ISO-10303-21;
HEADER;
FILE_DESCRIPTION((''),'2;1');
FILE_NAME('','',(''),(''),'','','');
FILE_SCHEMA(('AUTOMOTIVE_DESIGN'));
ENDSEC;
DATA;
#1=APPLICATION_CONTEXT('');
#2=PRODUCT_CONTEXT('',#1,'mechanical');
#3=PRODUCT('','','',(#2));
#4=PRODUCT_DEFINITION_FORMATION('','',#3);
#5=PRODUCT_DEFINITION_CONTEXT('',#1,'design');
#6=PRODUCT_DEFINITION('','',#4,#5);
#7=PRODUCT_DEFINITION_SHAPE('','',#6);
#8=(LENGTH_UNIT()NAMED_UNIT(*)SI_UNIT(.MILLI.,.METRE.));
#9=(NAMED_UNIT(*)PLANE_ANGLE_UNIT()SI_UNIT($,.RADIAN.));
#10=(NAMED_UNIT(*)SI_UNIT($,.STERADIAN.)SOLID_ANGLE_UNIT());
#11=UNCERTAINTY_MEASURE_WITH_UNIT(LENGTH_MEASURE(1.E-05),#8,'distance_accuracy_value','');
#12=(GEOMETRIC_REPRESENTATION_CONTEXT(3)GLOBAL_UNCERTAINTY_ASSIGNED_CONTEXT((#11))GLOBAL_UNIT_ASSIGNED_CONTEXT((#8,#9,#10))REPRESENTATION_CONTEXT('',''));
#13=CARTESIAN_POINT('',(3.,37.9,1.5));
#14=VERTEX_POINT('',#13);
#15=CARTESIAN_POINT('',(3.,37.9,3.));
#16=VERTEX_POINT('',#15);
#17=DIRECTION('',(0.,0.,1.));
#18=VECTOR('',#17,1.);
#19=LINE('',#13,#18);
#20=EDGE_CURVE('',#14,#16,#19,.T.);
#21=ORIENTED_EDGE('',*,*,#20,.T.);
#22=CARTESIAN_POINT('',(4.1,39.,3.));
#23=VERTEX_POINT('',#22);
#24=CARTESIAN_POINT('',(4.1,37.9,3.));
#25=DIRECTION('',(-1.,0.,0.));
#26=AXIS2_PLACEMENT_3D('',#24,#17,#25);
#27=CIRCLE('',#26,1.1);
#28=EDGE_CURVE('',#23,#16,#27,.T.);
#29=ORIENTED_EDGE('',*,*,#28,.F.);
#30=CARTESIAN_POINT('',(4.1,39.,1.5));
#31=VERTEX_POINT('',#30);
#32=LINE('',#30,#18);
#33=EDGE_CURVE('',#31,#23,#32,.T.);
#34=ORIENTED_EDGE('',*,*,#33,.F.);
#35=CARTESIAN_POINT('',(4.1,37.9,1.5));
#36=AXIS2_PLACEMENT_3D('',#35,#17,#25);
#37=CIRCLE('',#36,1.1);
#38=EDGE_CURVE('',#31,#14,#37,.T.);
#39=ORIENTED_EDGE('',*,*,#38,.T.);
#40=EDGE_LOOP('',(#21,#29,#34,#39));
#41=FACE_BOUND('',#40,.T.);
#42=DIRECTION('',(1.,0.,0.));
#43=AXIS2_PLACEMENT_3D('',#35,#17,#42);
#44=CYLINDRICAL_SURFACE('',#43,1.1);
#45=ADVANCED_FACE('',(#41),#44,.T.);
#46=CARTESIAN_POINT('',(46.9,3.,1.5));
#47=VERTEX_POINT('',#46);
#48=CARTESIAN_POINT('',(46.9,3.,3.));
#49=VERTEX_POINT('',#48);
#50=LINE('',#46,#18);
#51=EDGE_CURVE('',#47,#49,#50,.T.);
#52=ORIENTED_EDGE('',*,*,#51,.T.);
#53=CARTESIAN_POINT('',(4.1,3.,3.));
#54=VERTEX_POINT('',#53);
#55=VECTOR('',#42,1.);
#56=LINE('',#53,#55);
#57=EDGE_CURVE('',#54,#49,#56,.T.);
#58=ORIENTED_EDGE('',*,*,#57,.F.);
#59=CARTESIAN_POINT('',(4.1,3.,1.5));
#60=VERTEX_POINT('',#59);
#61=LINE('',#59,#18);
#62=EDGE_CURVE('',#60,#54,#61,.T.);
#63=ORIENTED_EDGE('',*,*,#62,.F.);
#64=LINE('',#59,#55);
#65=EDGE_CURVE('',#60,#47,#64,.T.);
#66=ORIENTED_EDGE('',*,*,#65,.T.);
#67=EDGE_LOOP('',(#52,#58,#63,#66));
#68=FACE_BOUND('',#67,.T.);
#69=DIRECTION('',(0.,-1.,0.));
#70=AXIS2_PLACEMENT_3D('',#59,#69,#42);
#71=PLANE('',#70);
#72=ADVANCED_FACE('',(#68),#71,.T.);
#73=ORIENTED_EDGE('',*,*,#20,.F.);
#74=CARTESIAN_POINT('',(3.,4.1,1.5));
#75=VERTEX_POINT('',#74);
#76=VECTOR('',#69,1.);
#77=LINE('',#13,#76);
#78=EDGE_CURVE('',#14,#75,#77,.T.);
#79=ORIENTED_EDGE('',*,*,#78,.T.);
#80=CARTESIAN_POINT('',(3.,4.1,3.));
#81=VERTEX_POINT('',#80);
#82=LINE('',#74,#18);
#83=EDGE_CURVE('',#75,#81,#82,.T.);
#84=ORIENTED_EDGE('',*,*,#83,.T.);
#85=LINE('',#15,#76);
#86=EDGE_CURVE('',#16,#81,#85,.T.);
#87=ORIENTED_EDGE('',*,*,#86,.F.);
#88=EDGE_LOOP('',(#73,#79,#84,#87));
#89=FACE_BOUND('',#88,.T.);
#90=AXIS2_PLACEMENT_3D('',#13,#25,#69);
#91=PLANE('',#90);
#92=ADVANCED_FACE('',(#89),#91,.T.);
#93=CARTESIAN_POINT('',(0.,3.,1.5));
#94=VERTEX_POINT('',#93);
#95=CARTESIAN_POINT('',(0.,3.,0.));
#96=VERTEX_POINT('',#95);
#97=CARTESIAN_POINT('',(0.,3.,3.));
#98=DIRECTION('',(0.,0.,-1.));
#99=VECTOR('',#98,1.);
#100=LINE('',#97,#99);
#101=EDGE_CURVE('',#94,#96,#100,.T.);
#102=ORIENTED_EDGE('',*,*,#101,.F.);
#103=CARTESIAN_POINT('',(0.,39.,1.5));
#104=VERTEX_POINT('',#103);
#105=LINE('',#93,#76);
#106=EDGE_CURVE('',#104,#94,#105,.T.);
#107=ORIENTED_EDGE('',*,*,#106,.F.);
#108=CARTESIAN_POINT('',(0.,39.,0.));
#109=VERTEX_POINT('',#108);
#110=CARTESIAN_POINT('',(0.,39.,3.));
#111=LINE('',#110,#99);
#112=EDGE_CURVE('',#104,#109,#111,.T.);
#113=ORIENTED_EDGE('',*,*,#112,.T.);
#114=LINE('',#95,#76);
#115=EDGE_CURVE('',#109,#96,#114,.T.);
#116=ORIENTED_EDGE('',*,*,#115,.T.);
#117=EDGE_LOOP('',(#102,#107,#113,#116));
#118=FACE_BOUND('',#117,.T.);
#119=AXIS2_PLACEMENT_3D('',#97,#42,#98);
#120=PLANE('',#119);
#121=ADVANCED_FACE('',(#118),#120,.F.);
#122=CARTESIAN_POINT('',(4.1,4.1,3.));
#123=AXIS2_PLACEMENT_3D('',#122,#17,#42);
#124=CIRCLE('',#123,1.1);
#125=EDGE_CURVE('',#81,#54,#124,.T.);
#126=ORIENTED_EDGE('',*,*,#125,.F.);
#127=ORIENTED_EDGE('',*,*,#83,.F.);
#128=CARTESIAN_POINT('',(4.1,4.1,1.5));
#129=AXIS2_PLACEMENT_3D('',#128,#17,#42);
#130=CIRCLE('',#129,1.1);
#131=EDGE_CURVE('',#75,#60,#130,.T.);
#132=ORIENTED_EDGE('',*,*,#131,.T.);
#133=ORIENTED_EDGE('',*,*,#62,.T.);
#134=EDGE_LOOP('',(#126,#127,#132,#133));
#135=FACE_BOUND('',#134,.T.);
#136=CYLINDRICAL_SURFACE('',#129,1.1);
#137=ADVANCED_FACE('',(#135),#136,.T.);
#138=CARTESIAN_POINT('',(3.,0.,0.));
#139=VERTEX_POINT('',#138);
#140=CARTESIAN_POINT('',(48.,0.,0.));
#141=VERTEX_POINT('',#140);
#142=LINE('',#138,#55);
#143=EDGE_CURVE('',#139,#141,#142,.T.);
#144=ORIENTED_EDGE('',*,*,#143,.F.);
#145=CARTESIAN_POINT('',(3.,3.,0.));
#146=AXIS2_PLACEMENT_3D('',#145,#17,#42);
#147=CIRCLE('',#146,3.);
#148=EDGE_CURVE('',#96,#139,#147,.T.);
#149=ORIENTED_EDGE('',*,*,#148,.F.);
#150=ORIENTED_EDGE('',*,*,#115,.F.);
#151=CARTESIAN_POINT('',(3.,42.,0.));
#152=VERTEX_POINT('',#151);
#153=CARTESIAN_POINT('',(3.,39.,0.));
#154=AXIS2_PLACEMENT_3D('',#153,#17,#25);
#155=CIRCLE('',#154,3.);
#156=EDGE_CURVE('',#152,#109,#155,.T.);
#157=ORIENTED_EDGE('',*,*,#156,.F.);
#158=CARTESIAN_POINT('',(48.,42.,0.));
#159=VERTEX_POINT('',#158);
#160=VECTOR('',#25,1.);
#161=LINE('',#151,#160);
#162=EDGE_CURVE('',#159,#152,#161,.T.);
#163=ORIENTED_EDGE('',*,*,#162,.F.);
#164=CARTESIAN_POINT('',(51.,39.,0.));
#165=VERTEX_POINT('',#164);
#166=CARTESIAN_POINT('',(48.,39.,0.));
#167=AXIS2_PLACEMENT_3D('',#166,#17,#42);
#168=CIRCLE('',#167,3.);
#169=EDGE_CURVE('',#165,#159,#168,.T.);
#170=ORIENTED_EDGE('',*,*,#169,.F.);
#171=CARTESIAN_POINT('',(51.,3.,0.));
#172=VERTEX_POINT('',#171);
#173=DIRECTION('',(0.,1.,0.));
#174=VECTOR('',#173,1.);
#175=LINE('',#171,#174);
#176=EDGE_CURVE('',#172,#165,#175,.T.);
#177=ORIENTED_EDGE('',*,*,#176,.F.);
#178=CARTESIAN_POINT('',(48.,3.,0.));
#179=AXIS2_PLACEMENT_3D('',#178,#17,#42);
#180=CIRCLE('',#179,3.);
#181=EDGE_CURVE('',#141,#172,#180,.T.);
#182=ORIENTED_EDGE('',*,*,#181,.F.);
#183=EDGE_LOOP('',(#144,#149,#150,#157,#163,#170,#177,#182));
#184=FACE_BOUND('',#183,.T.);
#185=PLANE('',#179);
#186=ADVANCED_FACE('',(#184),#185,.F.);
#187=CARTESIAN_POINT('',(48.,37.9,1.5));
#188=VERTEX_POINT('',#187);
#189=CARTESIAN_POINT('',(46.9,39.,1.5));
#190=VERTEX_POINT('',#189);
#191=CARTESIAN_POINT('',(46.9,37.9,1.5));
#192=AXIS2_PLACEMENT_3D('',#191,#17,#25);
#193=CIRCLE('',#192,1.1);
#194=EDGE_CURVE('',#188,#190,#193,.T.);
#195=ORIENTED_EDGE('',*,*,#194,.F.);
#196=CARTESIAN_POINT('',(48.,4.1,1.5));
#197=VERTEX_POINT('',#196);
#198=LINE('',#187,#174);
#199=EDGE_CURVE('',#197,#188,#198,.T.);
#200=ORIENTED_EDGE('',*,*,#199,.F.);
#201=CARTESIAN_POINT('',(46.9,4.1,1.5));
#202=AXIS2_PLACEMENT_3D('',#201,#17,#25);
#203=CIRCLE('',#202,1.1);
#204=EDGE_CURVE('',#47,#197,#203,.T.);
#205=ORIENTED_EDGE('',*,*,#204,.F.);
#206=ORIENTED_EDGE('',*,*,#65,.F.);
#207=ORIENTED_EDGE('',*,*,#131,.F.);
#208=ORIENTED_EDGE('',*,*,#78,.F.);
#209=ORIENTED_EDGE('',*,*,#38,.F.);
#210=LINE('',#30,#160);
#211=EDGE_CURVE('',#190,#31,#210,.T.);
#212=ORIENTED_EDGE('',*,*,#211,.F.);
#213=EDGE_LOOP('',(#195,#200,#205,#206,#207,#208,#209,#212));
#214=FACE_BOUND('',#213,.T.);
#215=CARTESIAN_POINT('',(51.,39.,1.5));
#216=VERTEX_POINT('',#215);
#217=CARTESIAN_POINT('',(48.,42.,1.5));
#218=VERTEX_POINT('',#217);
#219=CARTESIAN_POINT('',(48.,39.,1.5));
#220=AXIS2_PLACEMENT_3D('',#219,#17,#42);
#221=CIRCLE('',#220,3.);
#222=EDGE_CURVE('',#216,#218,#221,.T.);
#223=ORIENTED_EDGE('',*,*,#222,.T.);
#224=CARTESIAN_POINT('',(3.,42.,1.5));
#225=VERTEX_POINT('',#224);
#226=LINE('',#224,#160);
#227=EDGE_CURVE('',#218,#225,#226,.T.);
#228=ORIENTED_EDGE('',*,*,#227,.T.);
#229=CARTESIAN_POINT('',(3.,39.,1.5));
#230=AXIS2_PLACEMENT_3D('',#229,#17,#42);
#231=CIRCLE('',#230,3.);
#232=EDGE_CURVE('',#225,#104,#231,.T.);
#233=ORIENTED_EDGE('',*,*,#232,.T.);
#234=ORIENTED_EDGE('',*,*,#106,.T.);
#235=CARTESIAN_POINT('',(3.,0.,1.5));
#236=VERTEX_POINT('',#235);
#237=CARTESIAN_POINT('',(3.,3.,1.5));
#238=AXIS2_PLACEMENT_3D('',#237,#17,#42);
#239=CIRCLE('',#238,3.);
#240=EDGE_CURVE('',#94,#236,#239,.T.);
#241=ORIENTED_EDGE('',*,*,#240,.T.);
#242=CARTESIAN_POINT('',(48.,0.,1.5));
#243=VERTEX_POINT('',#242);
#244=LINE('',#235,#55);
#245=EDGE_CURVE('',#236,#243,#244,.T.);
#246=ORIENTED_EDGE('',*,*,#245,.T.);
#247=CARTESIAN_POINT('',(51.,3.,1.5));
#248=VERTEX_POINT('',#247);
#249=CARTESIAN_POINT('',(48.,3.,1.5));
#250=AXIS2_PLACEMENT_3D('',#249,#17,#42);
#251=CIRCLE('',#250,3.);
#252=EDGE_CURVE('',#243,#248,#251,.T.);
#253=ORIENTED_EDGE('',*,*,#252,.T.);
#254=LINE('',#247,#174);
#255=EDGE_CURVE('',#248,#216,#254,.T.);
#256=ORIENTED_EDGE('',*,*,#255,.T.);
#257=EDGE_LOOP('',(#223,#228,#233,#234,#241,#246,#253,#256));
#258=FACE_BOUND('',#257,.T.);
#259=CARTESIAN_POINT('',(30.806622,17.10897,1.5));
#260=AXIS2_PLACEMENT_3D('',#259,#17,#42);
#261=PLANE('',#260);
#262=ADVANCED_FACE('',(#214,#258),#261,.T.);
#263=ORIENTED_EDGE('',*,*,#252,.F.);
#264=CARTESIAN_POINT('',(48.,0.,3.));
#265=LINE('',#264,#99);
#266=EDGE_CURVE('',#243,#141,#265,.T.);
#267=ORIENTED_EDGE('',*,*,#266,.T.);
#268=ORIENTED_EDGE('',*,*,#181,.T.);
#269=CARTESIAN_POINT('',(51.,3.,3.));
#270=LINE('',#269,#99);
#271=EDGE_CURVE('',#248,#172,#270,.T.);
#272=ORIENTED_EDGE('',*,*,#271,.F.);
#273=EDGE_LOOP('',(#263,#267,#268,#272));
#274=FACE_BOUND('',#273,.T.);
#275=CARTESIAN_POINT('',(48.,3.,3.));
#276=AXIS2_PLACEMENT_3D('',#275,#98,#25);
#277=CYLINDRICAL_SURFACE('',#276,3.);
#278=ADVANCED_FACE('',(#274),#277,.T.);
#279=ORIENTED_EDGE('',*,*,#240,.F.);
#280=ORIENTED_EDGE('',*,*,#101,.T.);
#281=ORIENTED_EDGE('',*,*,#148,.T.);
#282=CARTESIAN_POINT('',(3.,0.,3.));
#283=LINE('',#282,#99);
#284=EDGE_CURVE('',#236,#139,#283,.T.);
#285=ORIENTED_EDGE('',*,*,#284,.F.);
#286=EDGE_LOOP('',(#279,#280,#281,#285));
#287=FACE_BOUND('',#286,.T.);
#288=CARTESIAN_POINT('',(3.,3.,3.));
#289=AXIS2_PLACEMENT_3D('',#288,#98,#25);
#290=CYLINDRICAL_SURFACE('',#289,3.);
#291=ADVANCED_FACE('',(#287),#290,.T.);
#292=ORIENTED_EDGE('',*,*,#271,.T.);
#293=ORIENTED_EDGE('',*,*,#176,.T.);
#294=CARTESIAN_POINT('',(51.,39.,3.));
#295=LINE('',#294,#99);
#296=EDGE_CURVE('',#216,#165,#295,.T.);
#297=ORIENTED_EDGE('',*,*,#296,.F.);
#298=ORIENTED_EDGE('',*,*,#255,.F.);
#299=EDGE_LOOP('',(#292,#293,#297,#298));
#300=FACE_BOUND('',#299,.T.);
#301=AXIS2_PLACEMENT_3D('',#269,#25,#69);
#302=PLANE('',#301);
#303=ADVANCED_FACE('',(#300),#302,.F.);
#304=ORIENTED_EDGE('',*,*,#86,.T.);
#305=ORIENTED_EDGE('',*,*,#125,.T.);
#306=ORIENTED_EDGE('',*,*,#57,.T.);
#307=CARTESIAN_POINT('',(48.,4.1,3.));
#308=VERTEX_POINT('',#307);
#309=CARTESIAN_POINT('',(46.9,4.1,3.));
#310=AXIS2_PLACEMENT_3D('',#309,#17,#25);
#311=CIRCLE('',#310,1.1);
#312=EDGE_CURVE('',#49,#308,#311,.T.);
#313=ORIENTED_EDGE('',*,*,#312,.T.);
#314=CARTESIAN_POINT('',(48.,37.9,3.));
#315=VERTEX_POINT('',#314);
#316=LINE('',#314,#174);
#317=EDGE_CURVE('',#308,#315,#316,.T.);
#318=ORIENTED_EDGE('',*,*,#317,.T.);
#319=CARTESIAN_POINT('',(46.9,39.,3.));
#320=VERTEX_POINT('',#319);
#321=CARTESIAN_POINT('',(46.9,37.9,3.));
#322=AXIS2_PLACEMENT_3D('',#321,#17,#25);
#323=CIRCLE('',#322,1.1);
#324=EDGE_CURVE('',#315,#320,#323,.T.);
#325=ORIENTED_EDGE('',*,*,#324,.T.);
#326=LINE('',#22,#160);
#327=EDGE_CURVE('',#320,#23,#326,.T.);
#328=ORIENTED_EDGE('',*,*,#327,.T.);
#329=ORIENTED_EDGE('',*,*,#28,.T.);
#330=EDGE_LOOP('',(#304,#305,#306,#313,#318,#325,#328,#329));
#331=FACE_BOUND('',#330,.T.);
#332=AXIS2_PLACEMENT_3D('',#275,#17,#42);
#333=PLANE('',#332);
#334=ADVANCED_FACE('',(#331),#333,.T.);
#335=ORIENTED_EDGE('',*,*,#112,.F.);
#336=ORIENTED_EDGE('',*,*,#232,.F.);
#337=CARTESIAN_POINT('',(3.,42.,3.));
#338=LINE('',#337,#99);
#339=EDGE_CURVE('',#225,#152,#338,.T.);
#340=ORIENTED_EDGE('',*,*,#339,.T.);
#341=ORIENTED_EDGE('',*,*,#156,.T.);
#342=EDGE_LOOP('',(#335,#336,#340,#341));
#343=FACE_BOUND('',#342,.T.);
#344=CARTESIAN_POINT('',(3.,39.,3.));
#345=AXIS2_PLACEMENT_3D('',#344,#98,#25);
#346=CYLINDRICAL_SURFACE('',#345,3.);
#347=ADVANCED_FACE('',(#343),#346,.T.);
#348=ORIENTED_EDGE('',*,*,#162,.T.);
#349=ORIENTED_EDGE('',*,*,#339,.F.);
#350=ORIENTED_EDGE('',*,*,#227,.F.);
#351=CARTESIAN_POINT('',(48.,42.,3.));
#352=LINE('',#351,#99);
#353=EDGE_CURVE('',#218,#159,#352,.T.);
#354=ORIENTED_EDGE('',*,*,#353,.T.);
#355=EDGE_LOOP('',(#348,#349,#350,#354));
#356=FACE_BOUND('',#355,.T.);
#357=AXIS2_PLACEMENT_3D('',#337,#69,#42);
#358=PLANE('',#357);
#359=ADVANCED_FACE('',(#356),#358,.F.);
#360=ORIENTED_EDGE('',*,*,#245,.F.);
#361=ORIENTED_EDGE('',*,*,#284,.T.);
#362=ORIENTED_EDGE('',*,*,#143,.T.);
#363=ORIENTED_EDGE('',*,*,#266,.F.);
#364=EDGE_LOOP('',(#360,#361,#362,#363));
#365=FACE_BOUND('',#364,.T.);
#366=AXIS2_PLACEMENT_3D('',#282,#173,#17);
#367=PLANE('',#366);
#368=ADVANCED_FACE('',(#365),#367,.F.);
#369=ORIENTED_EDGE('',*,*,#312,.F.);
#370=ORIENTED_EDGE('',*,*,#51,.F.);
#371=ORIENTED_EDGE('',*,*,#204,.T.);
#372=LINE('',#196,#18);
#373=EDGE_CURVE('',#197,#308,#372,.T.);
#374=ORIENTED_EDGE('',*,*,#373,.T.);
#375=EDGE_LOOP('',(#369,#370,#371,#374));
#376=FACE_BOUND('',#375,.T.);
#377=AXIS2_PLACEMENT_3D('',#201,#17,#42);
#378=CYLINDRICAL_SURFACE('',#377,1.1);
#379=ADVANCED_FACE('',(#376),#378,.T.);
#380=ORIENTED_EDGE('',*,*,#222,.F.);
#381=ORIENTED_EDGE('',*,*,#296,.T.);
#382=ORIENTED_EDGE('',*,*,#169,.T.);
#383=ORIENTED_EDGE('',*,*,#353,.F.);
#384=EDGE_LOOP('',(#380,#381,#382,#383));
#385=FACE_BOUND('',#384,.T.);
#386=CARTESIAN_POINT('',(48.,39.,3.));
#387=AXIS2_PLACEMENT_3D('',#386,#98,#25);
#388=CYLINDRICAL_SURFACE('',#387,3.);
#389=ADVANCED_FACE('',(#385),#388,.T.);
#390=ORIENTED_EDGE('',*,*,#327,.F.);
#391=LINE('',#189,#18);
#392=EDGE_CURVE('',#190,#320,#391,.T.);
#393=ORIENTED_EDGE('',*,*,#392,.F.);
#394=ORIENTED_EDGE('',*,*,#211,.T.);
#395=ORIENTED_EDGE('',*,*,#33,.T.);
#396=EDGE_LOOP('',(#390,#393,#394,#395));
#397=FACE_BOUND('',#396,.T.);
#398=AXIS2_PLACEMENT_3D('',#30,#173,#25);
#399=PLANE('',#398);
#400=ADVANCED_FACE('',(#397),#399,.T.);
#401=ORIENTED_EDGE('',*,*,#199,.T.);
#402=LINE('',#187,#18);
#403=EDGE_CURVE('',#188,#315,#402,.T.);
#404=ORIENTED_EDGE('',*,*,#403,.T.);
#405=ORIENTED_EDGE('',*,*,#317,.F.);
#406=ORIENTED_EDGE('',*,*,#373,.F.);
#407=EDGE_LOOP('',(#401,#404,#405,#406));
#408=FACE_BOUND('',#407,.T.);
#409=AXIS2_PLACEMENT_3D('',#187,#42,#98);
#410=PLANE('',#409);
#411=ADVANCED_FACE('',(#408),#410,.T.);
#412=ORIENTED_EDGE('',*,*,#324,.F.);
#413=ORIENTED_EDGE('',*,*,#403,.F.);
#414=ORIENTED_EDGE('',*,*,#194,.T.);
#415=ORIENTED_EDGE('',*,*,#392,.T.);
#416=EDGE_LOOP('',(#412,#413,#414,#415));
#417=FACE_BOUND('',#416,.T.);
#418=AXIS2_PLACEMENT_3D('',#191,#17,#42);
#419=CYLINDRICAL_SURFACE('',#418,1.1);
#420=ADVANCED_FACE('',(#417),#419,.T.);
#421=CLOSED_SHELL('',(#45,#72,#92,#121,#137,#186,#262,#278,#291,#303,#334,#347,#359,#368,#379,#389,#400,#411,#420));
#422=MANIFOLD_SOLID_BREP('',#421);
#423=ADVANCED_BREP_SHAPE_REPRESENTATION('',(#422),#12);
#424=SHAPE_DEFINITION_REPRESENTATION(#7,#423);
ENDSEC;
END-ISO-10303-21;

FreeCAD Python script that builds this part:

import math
import FreeCAD as App
import Part
import Sketcher

doc = App.newDocument("Part")
body = doc.addObject("PartDesign::Body", "Body")

sketch1 = doc.addObject("Sketcher::SketchObject", "Sketch")
body.addObject(sketch1)
sketch1.AttachmentSupport = (doc.XY_Plane, [""])
sketch1.MapMode = "FlatFace"
sketch1.addGeometry([
    Part.LineSegment(App.Vector(3, 0, 0), App.Vector(48, 0, 0)),
    Part.ArcOfCircle(Part.Circle(App.Vector(48, 3, 0), App.Vector(0, 0, 1), 3), math.radians(-90), math.radians(0)),
    Part.LineSegment(App.Vector(51, 3, 0), App.Vector(51, 39, 0)),
    Part.ArcOfCircle(Part.Circle(App.Vector(48, 39, 0), App.Vector(0, 0, 1), 3), math.radians(0), math.radians(90)),
    Part.LineSegment(App.Vector(48, 42, 0), App.Vector(3, 42, 0)),
    Part.ArcOfCircle(Part.Circle(App.Vector(3, 39, 0), App.Vector(0, 0, 1), 3), math.radians(90), math.radians(180)),
    Part.LineSegment(App.Vector(0, 39, 0), App.Vector(0, 3, 0)),
    Part.ArcOfCircle(Part.Circle(App.Vector(3, 3, 0), App.Vector(0, 0, 1), 3), math.radians(180), math.radians(270)),
], False)
sketch1.addConstraint([
    Sketcher.Constraint("Tangent", 0, 2, 1, 1),
    Sketcher.Constraint("Tangent", 1, 2, 2, 1),
    Sketcher.Constraint("Tangent", 2, 2, 3, 1),
    Sketcher.Constraint("Tangent", 3, 2, 4, 1),
    Sketcher.Constraint("Tangent", 4, 2, 5, 1),
    Sketcher.Constraint("Tangent", 5, 2, 6, 1),
    Sketcher.Constraint("Tangent", 6, 2, 7, 1),
    Sketcher.Constraint("Tangent", 7, 2, 0, 1),
    Sketcher.Constraint("Horizontal", 0),
    Sketcher.Constraint("Vertical", 2),
    Sketcher.Constraint("Horizontal", 4),
    Sketcher.Constraint("Vertical", 6),
    Sketcher.Constraint("Equal", 1, 3),
    Sketcher.Constraint("Equal", 3, 5),
    Sketcher.Constraint("Equal", 5, 7),
    Sketcher.Constraint("PointOnObject", 0, 2, -1),
    Sketcher.Constraint("PointOnObject", 5, 2, -2),
    Sketcher.Constraint("Radius", 1, 3.0),
    Sketcher.Constraint("DistanceX", 0, 1, 0, 2, 45.0),
    Sketcher.Constraint("DistanceY", 2, 1, 2, 2, 36.0),
])
pad1 = doc.addObject("PartDesign::Pad", "Pad")
body.addObject(pad1)
pad1.Profile = sketch1
pad1.Length = 3

sketch2 = doc.addObject("Sketcher::SketchObject", "Sketch001")
body.addObject(sketch2)
sketch2.AttachmentSupport = (doc.XY_Plane, [""])
sketch2.MapMode = "FlatFace"
sketch2.AttachmentOffset = App.Placement(App.Vector(0, 0, 3), App.Rotation())
sketch2.addGeometry([
    Part.LineSegment(App.Vector(-7.614, 49.614, 0), App.Vector(-7.614, -7.614, 0)),
    Part.LineSegment(App.Vector(-7.614, -7.614, 0), App.Vector(58.614, -7.614, 0)),
    Part.LineSegment(App.Vector(58.614, -7.614, 0), App.Vector(58.614, 49.614, 0)),
    Part.LineSegment(App.Vector(58.614, 49.614, 0), App.Vector(-7.614, 49.614, 0)),
    Part.ArcOfCircle(Part.Circle(App.Vector(4.1, 37.9, 0), App.Vector(0, 0, 1), 1.1), math.radians(90), math.radians(180)),
    Part.LineSegment(App.Vector(4.1, 39, 0), App.Vector(46.9, 39, 0)),
    Part.ArcOfCircle(Part.Circle(App.Vector(46.9, 37.9, 0), App.Vector(0, 0, 1), 1.1), math.radians(0), math.radians(90)),
    Part.LineSegment(App.Vector(48, 37.9, 0), App.Vector(48, 4.1, 0)),
    Part.ArcOfCircle(Part.Circle(App.Vector(46.9, 4.1, 0), App.Vector(0, 0, 1), 1.1), math.radians(-90), math.radians(0)),
    Part.LineSegment(App.Vector(46.9, 3, 0), App.Vector(4.1, 3, 0)),
    Part.ArcOfCircle(Part.Circle(App.Vector(4.1, 4.1, 0), App.Vector(0, 0, 1), 1.1), math.radians(-180), math.radians(-90)),
    Part.LineSegment(App.Vector(3, 4.1, 0), App.Vector(3, 37.9, 0)),
], False)
sketch2.addConstraint([
    Sketcher.Constraint("Coincident", 0, 2, 1, 1),
    Sketcher.Constraint("Coincident", 1, 2, 2, 1),
    Sketcher.Constraint("Coincident", 2, 2, 3, 1),
    Sketcher.Constraint("Coincident", 3, 2, 0, 1),
    Sketcher.Constraint("Tangent", 4, 1, 5, 1),
    Sketcher.Constraint("Tangent", 5, 2, 6, 2),
    Sketcher.Constraint("Tangent", 6, 1, 7, 1),
    Sketcher.Constraint("Tangent", 7, 2, 8, 2),
    Sketcher.Constraint("Tangent", 8, 1, 9, 1),
    Sketcher.Constraint("Tangent", 9, 2, 10, 2),
    Sketcher.Constraint("Tangent", 10, 1, 11, 1),
    Sketcher.Constraint("Tangent", 11, 2, 4, 2),
    Sketcher.Constraint("Vertical", 0),
    Sketcher.Constraint("Horizontal", 1),
    Sketcher.Constraint("Vertical", 2),
    Sketcher.Constraint("Horizontal", 3),
    Sketcher.Constraint("Horizontal", 5),
    Sketcher.Constraint("Vertical", 7),
    Sketcher.Constraint("Horizontal", 9),
    Sketcher.Constraint("Vertical", 11),
    Sketcher.Constraint("Equal", 4, 6),
    Sketcher.Constraint("Equal", 6, 8),
    Sketcher.Constraint("Equal", 8, 10),
    Sketcher.Constraint("Radius", 4, 1.1),
    Sketcher.Constraint("DistanceX", 5, 1, 5, 2, 42.8),
    Sketcher.Constraint("DistanceY", 7, 2, 7, 1, 33.8),
    Sketcher.Constraint("DistanceY", -1, 1, 4, 1, 39.0),
    Sketcher.Constraint("DistanceX", -1, 1, 6, 1, 48.0),
    Sketcher.Constraint("DistanceX", 1, 1, 1, 2, 66.228),
    Sketcher.Constraint("DistanceY", 0, 2, 0, 1, 57.228),
    Sketcher.Constraint("DistanceX", 0, 2, -1, 1, 7.614),
    Sketcher.Constraint("DistanceY", 0, 2, -1, 1, 7.614),
])
pocket1 = doc.addObject("PartDesign::Pocket", "Pocket")
body.addObject(pocket1)
pocket1.Profile = sketch2
pocket1.Length = 1.5

doc.recompute()
